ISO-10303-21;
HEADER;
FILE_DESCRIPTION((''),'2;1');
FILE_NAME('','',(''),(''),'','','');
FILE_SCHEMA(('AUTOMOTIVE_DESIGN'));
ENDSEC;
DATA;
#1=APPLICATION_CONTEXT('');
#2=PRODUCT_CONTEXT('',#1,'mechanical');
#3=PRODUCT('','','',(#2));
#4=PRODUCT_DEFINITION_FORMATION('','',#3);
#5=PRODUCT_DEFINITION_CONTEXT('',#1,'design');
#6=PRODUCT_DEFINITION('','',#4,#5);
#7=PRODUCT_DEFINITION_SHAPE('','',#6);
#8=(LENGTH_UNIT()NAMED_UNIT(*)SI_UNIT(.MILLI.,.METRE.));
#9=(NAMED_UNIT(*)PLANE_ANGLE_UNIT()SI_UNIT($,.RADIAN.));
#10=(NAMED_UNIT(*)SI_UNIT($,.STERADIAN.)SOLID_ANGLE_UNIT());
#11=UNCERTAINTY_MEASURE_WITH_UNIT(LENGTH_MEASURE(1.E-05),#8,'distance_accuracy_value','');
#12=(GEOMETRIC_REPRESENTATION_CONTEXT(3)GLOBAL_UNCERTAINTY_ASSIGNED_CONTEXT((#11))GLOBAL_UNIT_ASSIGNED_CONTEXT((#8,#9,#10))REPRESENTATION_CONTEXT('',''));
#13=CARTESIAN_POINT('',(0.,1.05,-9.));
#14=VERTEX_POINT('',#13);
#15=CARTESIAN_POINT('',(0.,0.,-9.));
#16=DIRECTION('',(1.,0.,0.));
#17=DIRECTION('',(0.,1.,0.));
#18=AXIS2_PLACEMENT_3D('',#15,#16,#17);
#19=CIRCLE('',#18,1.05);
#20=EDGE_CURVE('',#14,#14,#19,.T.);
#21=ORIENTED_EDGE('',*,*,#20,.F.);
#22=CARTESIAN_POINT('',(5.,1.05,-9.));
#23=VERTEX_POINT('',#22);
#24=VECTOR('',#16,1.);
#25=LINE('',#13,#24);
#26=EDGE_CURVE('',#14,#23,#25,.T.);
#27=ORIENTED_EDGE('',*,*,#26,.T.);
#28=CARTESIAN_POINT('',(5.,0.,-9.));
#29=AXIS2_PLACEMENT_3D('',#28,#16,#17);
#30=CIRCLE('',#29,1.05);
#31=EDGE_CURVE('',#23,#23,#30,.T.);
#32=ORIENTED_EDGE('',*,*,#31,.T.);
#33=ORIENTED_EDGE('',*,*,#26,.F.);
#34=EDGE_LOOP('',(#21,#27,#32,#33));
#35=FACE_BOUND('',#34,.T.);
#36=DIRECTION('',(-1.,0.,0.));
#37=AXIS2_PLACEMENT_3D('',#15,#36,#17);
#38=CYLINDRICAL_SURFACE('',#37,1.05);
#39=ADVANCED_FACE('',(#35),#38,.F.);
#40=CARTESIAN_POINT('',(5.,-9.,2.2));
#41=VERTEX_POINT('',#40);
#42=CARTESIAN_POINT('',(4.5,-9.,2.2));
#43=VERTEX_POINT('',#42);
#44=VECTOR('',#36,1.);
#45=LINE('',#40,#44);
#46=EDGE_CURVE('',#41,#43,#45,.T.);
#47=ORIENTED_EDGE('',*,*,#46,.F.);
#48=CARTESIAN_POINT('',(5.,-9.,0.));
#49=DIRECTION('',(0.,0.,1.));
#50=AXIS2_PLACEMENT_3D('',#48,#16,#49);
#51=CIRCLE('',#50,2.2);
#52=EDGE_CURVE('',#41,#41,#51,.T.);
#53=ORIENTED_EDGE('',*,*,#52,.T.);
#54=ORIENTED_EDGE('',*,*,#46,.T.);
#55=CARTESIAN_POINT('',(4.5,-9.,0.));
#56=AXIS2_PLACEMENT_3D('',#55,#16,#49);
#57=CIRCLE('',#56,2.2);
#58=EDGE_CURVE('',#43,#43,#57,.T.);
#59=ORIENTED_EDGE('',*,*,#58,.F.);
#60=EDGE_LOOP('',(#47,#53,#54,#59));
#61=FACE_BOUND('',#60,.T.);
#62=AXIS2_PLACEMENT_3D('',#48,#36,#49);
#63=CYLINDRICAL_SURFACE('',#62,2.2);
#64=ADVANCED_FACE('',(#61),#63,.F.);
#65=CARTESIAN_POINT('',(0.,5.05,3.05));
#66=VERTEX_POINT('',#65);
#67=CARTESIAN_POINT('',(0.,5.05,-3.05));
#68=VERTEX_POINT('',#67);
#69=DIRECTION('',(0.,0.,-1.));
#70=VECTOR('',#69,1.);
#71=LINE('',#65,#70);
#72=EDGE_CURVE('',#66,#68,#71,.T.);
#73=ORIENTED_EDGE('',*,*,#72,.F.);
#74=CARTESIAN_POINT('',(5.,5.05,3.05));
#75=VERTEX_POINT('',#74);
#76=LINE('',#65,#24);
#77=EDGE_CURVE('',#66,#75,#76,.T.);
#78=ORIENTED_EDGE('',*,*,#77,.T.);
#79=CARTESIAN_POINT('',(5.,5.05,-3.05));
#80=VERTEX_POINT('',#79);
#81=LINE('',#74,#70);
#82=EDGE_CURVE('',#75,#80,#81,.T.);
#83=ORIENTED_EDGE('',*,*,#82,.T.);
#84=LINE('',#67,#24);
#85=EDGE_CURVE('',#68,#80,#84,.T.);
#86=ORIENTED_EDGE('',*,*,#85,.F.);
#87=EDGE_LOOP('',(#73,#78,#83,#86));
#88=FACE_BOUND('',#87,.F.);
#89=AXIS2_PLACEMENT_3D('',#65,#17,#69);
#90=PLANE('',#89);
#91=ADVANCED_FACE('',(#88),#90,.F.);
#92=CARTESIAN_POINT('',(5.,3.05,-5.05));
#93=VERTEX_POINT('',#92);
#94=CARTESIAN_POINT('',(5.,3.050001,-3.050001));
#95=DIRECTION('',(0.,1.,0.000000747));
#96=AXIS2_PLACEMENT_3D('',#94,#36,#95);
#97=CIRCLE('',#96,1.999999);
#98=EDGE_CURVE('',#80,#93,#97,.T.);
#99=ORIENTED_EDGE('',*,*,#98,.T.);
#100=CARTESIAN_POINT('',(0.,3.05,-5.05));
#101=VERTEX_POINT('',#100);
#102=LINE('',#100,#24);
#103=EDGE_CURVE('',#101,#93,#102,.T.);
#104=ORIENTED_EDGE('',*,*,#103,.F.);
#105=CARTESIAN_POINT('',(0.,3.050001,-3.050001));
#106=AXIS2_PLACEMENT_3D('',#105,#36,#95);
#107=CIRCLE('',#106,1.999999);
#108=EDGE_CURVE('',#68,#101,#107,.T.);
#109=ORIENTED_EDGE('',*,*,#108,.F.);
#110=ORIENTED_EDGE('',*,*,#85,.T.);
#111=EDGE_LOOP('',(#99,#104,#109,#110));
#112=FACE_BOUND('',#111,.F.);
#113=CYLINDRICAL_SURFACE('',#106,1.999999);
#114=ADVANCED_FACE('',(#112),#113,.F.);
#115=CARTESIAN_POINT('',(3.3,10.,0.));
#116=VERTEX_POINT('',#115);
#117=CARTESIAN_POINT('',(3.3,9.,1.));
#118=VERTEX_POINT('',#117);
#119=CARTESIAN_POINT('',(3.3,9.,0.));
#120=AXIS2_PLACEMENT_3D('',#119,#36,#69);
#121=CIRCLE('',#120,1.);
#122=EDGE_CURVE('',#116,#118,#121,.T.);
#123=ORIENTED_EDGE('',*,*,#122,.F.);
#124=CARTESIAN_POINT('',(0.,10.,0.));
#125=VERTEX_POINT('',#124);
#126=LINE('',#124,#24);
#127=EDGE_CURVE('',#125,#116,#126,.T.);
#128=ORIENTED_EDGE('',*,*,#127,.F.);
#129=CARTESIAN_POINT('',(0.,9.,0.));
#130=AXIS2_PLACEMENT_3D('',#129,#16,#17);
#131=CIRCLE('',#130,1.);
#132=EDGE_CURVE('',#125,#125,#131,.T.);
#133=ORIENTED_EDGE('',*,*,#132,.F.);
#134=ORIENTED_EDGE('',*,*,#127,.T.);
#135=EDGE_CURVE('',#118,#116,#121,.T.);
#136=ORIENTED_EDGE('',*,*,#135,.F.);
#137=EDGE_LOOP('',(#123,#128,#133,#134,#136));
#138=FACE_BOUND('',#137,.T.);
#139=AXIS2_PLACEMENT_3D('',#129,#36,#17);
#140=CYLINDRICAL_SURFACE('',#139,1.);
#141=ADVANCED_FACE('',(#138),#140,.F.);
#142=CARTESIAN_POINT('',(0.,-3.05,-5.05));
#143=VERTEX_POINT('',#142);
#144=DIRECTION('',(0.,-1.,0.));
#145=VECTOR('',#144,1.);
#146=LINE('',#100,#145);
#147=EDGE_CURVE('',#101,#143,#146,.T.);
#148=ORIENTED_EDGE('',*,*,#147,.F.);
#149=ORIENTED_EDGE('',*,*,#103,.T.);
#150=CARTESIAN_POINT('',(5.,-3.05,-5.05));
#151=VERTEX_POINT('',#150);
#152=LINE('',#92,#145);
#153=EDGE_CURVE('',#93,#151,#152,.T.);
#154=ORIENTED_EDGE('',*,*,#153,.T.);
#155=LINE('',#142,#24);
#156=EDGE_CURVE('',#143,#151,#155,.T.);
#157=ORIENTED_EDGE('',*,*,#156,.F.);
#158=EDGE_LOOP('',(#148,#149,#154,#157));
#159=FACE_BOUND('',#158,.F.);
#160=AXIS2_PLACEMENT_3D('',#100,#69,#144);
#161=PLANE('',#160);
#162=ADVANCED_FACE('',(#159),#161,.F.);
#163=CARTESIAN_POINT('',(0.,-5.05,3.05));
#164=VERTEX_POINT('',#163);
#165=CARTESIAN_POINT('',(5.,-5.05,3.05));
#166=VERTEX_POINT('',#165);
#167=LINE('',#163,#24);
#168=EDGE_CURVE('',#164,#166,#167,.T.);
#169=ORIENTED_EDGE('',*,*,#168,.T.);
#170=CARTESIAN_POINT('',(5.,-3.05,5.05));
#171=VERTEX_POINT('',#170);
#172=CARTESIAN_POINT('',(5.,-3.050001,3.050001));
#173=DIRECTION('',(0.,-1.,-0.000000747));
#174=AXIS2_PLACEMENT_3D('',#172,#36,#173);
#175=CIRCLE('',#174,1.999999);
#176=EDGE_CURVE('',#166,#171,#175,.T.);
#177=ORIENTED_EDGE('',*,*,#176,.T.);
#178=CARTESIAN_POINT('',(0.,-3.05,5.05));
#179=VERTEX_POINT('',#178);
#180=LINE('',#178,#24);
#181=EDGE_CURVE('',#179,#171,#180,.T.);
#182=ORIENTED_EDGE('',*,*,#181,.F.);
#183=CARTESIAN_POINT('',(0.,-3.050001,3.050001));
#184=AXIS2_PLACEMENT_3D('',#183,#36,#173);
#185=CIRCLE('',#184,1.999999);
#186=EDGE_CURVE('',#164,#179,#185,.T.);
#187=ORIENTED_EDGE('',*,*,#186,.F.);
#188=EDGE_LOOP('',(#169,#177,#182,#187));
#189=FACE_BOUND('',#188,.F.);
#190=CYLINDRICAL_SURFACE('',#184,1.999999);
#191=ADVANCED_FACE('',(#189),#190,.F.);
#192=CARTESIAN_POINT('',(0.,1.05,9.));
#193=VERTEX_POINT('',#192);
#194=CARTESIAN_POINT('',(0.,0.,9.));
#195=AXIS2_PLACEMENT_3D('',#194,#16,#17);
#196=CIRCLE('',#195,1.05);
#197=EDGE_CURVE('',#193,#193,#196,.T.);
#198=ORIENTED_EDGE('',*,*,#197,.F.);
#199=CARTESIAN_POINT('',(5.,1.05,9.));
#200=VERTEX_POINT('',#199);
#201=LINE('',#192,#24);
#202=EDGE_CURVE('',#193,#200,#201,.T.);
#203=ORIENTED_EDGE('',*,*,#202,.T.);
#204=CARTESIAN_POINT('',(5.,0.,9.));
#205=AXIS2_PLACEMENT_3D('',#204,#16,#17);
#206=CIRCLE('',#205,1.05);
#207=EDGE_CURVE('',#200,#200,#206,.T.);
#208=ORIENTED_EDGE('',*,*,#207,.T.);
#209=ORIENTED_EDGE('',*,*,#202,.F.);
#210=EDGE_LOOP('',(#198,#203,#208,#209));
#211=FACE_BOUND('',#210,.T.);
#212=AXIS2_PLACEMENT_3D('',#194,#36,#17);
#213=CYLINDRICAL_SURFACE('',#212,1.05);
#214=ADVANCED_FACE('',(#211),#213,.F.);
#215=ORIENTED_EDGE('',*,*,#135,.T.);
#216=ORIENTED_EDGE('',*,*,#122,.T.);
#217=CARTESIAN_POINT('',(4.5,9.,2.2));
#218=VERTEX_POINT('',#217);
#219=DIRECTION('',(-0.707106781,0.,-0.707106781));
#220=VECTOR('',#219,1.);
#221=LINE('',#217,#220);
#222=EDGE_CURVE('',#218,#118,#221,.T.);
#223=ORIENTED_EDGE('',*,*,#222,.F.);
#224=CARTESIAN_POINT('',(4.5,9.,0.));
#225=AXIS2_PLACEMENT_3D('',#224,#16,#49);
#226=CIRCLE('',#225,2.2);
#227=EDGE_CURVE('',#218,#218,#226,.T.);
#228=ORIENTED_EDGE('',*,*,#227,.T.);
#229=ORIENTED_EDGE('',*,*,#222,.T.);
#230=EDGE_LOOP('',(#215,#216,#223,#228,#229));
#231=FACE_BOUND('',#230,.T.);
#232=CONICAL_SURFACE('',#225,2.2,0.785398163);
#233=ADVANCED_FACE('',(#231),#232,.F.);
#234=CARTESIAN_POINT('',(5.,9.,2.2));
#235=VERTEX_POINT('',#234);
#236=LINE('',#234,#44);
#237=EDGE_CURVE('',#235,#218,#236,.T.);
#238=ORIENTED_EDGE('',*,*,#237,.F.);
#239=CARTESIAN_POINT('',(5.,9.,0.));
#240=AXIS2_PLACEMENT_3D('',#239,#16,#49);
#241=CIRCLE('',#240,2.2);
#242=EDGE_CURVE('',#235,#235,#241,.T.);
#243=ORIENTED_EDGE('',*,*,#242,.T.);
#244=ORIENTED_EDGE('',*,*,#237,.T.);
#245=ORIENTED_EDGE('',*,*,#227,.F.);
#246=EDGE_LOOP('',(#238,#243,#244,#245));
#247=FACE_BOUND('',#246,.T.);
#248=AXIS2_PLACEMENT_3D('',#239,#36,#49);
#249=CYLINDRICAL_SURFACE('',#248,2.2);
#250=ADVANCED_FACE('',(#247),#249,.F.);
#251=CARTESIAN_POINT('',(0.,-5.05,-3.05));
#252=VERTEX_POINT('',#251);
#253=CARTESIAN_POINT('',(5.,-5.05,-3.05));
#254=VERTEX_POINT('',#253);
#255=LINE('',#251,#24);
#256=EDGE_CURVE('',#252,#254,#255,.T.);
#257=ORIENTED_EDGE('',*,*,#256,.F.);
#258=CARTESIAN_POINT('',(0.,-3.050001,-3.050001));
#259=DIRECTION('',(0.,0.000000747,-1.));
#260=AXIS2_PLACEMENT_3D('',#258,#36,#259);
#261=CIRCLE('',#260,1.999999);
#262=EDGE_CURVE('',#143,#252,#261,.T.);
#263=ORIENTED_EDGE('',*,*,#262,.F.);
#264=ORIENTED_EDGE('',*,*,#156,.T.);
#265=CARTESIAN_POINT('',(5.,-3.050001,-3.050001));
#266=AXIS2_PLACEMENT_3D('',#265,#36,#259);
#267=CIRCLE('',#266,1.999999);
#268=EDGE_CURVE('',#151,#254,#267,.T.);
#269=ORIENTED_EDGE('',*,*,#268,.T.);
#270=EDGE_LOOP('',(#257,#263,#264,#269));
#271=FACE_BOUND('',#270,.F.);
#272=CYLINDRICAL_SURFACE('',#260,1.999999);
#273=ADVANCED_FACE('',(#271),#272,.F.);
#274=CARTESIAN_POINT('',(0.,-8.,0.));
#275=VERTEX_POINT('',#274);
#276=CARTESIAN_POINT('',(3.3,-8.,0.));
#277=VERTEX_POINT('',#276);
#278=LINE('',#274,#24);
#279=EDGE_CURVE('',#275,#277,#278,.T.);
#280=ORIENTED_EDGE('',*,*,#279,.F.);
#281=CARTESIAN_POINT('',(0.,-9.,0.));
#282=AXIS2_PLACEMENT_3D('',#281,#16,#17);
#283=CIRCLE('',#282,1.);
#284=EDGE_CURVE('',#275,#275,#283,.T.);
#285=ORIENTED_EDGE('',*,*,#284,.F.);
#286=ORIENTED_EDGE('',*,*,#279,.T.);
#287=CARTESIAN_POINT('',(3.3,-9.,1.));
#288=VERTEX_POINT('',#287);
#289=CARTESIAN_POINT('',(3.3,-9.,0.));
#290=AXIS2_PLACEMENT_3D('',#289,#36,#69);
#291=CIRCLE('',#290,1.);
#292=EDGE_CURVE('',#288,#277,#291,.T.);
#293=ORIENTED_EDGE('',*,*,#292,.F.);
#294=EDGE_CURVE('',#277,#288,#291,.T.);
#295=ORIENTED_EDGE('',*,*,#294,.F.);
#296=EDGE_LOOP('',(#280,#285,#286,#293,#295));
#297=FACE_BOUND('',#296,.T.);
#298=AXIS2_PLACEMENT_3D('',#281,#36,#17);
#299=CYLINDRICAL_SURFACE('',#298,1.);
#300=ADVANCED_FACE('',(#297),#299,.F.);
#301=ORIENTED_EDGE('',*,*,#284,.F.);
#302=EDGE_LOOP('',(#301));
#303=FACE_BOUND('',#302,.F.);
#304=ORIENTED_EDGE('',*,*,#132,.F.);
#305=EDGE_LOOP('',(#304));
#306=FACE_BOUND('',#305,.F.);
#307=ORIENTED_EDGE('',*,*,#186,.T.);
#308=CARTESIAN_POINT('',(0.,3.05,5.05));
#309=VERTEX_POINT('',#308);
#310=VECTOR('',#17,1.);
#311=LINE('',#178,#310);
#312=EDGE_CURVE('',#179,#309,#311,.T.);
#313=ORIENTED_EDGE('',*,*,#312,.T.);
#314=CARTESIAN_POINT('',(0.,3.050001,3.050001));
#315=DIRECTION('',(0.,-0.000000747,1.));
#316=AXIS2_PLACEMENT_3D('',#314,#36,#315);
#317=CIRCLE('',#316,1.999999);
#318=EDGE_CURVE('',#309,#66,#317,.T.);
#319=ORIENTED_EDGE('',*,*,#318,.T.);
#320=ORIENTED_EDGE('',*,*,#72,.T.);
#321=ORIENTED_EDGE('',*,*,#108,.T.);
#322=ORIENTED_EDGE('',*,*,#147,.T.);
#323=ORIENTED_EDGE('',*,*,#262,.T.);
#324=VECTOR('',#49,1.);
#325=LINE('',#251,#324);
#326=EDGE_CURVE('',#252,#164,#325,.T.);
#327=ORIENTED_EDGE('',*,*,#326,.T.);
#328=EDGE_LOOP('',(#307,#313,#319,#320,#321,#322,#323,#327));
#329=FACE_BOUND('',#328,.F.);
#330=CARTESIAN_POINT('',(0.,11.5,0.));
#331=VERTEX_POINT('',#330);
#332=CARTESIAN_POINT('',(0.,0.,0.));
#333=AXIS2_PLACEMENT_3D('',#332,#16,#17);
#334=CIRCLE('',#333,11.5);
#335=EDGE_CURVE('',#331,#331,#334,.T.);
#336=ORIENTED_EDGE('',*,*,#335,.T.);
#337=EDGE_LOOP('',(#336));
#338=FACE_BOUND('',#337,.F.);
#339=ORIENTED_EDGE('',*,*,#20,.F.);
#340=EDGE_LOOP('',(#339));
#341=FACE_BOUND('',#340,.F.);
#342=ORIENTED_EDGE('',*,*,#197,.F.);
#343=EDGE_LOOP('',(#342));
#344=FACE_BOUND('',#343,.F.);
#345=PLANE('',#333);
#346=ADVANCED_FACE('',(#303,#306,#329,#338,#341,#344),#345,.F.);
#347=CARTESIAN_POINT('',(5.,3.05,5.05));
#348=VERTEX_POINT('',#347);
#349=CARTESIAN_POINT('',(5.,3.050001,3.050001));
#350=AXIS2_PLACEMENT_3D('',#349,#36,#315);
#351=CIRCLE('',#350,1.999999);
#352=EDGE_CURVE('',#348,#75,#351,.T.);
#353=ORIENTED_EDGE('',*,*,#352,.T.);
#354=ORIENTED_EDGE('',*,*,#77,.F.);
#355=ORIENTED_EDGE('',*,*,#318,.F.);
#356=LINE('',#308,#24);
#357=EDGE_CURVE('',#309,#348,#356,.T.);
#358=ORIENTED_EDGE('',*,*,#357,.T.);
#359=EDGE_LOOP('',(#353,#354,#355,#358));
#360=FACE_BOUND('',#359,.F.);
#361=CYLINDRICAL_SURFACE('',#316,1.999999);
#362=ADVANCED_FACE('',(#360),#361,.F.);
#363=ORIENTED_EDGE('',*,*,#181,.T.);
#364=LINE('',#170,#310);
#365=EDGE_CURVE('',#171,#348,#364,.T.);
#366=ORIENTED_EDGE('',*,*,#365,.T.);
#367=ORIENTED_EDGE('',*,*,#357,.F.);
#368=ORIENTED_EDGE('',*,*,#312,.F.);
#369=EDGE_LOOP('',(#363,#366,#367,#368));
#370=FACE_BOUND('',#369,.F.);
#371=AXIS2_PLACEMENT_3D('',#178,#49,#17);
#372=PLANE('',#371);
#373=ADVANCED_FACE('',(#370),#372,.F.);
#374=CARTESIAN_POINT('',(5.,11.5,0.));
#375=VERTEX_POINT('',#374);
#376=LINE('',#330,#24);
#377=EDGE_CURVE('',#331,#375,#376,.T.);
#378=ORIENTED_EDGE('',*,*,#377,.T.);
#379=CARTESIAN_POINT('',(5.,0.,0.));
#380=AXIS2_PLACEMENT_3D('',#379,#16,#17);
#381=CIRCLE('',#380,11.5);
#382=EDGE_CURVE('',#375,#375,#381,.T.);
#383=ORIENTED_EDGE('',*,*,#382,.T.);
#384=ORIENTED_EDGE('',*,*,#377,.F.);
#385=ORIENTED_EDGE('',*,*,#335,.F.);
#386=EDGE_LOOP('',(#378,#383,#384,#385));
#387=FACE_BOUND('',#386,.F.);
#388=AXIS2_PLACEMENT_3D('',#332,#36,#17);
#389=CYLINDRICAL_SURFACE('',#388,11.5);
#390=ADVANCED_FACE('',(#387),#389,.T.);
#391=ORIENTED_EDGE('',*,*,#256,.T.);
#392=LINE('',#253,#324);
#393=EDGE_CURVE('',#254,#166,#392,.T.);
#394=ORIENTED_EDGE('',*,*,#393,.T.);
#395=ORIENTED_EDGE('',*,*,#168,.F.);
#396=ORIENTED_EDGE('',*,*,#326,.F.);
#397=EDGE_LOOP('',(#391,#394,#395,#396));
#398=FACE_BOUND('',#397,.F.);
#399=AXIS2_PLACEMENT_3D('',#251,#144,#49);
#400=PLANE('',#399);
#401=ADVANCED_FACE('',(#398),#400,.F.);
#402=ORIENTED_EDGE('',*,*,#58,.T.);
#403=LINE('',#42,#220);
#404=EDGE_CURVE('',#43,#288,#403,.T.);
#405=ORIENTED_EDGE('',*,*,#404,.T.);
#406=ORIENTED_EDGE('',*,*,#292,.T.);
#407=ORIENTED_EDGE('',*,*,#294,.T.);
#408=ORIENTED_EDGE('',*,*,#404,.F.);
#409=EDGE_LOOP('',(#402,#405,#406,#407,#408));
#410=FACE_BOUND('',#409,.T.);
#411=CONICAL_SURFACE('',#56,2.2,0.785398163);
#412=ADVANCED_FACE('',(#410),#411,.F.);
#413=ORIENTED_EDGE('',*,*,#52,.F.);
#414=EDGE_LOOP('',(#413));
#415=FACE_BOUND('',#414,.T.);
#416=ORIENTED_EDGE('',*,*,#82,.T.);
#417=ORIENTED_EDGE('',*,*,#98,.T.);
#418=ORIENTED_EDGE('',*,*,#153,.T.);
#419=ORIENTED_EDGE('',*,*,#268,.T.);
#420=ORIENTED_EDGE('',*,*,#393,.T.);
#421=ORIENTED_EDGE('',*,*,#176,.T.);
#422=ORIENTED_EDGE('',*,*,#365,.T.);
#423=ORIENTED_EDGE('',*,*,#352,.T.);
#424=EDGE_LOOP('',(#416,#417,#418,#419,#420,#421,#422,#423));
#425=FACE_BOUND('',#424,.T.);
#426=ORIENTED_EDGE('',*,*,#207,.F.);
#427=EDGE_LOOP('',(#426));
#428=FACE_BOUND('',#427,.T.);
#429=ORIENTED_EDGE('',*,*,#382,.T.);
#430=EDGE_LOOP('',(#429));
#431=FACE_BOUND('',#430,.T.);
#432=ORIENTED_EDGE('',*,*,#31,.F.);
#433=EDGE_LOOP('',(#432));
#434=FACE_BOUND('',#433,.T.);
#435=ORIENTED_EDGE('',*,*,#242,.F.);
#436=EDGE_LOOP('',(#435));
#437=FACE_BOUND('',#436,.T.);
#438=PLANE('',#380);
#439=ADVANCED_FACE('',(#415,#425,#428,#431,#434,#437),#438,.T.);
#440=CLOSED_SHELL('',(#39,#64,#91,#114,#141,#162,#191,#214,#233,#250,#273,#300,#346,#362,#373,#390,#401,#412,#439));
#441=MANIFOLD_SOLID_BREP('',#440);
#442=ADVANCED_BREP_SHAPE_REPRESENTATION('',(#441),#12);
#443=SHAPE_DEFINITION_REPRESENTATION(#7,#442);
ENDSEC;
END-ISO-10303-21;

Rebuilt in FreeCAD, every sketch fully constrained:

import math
import FreeCAD as App
import Part
import Sketcher

V = App.Vector
Q = App.Units.Quantity


def add_polygon(sketch, points):
    """Adds a closed chain of lines whose ends are joined by coincident constraints."""
    first, n = sketch.GeometryCount, len(points)
    for a, b in zip(points, points[1:] + points[:1]):
        sketch.addGeometry(Part.LineSegment(App.Vector(*a, 0), App.Vector(*b, 0)), False)
    for i in range(n):
        sketch.addConstraint(Sketcher.Constraint("Coincident", first + i, 2, first + (i + 1) % n, 1))

doc = App.newDocument("Part")
body = doc.addObject("PartDesign::Body", "Body")

# Sketch on YZ plane
sketch1 = doc.addObject("Sketcher::SketchObject", "Sketch")
body.addObject(sketch1)
sketch1.AttachmentSupport = (doc.YZ_Plane, [""])
sketch1.MapMode = "FlatFace"
sketch1.addGeometry([
    Part.Circle(V(0, 0, 0), V(0, 0, 1), 11.5),  # 0
    Part.Circle(V(0, -9, 0), V(0, 0, 1), 1.1),  # 1
    Part.Circle(V(-9, 0, 0), V(0, 0, 1), 1),  # 2
    Part.LineSegment(V(-5, -3, 0), V(-5, 3, 0)),  # 3
    Part.ArcOfCircle(Part.Circle(V(-3.1, 3.1, 0), V(0, 0, 1), 2), math.radians(90), math.radians(180)),  # 4
    Part.LineSegment(V(-3, 5, 0), V(3, 5, 0)),  # 5
    Part.ArcOfCircle(Part.Circle(V(3.1, 3.1, 0), V(0, 0, 1), 2), math.radians(0), math.radians(90)),  # 6
    Part.LineSegment(V(5, 3, 0), V(5, -3, 0)),  # 7
    Part.ArcOfCircle(Part.Circle(V(3.1, -3.1, 0), V(0, 0, 1), 2), math.radians(-90), math.radians(0)),  # 8
    Part.LineSegment(V(3, -5, 0), V(-3, -5, 0)),  # 9
    Part.ArcOfCircle(Part.Circle(V(-3.1, -3.1, 0), V(0, 0, 1), 2), math.radians(180), math.radians(270)),  # 10
    Part.Circle(V(9, 0, 0), V(0, 0, 1), 1),  # 11
    Part.Circle(V(0, 9, 0), V(0, 0, 1), 1.1),  # 12
], False)
sketch1.addConstraint([
    Sketcher.Constraint("Tangent", 3, 2, 4, 2),
    Sketcher.Constraint("Tangent", 4, 1, 5, 1),
    Sketcher.Constraint("Tangent", 5, 2, 6, 2),
    Sketcher.Constraint("Tangent", 6, 1, 7, 1),
    Sketcher.Constraint("Tangent", 7, 2, 8, 2),
    Sketcher.Constraint("Tangent", 8, 1, 9, 1),
    Sketcher.Constraint("Tangent", 9, 2, 10, 2),
    Sketcher.Constraint("Tangent", 10, 1, 3, 1),
    Sketcher.Constraint("Vertical", 3),
    Sketcher.Constraint("Horizontal", 5),
    Sketcher.Constraint("Vertical", 7),
    Sketcher.Constraint("Horizontal", 9),
    Sketcher.Constraint("Coincident", 0, 3, -1, 1),
    Sketcher.Constraint("Equal", 4, 6),
    Sketcher.Constraint("Equal", 6, 8),
    Sketcher.Constraint("Equal", 8, 10),
    Sketcher.Constraint("Equal", 2, 11),
    Sketcher.Constraint("Equal", 1, 12),
    Sketcher.Constraint("Symmetric", 4, 3, 8, 3, -1, 1),
    Sketcher.Constraint("Symmetric", 2, 3, 11, 3, -1, 1),
    Sketcher.Constraint("Symmetric", 1, 3, 12, 3, -1, 1),
    Sketcher.Constraint("PointOnObject", 1, 3, -2),
    Sketcher.Constraint("PointOnObject", 2, 3, -1),
    Sketcher.Constraint("Equal", 9, 3),
    Sketcher.Constraint("Diameter", 0, 23.0),
    Sketcher.Constraint("Diameter", 2, 2.0),
    Sketcher.Constraint("Radius", 4, 1.999999),
    Sketcher.Constraint("Diameter", 1, 2.1),
    Sketcher.Constraint("DistanceX", 5, 1, 5, 2, 6.1),
    Sketcher.Constraint("DistanceY", 1, 3, -1, 1, 9.0),
    Sketcher.Constraint("DistanceX", 2, 3, -1, 1, 9.0),
])
pad1 = doc.addObject("PartDesign::Pad", "Pad")
body.addObject(pad1)
pad1.Profile = sketch1
pad1.Length = 5

# Sketch on XZ plane
sketch2 = doc.addObject("Sketcher::SketchObject", "Sketch001")
body.addObject(sketch2)
sketch2.AttachmentSupport = (doc.XZ_Plane, [""])
sketch2.MapMode = "FlatFace"
sketch2.AttachmentOffset = App.Placement(V(0, 0, 9), App.Rotation())
add_polygon(sketch2, [(2.3, 0), (5, 0), (5, 2.2), (4.5, 2.2)])  # lines 0-3
sketch2.addConstraint([
    Sketcher.Constraint("Horizontal", 0),
    Sketcher.Constraint("Vertical", 1),
    Sketcher.Constraint("Horizontal", 2),
    Sketcher.Constraint("PointOnObject", 0, 2, -1),
    Sketcher.Constraint("Angle", 3, Q("-135 deg")),
    Sketcher.Constraint("DistanceX", 0, 1, 0, 2, 2.7),
    Sketcher.Constraint("DistanceX", 2, 2, 2, 1, 0.5),
    Sketcher.Constraint("DistanceX", -1, 1, 0, 2, 5.0),
])
groove = doc.addObject("PartDesign::Groove", "Groove")
body.addObject(groove)
groove.Profile = sketch2
groove.ReferenceAxis = (sketch2, ["H_Axis"])
groove.Angle = 360

# Sketch on XZ plane
sketch3 = doc.addObject("Sketcher::SketchObject", "Sketch002")
body.addObject(sketch3)
sketch3.AttachmentSupport = (doc.XZ_Plane, [""])
sketch3.MapMode = "FlatFace"
sketch3.AttachmentOffset = App.Placement(V(0, 0, -9), App.Rotation())
add_polygon(sketch3, [(4.5, 2.2), (2.3, 0), (5, 0), (5, 2.2)])  # lines 0-3
sketch3.addConstraint([
    Sketcher.Constraint("Horizontal", 1),
    Sketcher.Constraint("Vertical", 2),
    Sketcher.Constraint("Horizontal", 3),
    Sketcher.Constraint("PointOnObject", 0, 2, -1),
    Sketcher.Constraint("Angle", 0, Q("-135 deg")),
    Sketcher.Constraint("DistanceX", 1, 1, 1, 2, 2.7),
    Sketcher.Constraint("DistanceX", 3, 2, 3, 1, 0.5),
    Sketcher.Constraint("DistanceX", -1, 1, 1, 2, 5.0),
])
groove2 = doc.addObject("PartDesign::Groove", "Groove001")
body.addObject(groove2)
groove2.Profile = sketch3
groove2.ReferenceAxis = (sketch3, ["H_Axis"])
groove2.Angle = 360

doc.recompute()
